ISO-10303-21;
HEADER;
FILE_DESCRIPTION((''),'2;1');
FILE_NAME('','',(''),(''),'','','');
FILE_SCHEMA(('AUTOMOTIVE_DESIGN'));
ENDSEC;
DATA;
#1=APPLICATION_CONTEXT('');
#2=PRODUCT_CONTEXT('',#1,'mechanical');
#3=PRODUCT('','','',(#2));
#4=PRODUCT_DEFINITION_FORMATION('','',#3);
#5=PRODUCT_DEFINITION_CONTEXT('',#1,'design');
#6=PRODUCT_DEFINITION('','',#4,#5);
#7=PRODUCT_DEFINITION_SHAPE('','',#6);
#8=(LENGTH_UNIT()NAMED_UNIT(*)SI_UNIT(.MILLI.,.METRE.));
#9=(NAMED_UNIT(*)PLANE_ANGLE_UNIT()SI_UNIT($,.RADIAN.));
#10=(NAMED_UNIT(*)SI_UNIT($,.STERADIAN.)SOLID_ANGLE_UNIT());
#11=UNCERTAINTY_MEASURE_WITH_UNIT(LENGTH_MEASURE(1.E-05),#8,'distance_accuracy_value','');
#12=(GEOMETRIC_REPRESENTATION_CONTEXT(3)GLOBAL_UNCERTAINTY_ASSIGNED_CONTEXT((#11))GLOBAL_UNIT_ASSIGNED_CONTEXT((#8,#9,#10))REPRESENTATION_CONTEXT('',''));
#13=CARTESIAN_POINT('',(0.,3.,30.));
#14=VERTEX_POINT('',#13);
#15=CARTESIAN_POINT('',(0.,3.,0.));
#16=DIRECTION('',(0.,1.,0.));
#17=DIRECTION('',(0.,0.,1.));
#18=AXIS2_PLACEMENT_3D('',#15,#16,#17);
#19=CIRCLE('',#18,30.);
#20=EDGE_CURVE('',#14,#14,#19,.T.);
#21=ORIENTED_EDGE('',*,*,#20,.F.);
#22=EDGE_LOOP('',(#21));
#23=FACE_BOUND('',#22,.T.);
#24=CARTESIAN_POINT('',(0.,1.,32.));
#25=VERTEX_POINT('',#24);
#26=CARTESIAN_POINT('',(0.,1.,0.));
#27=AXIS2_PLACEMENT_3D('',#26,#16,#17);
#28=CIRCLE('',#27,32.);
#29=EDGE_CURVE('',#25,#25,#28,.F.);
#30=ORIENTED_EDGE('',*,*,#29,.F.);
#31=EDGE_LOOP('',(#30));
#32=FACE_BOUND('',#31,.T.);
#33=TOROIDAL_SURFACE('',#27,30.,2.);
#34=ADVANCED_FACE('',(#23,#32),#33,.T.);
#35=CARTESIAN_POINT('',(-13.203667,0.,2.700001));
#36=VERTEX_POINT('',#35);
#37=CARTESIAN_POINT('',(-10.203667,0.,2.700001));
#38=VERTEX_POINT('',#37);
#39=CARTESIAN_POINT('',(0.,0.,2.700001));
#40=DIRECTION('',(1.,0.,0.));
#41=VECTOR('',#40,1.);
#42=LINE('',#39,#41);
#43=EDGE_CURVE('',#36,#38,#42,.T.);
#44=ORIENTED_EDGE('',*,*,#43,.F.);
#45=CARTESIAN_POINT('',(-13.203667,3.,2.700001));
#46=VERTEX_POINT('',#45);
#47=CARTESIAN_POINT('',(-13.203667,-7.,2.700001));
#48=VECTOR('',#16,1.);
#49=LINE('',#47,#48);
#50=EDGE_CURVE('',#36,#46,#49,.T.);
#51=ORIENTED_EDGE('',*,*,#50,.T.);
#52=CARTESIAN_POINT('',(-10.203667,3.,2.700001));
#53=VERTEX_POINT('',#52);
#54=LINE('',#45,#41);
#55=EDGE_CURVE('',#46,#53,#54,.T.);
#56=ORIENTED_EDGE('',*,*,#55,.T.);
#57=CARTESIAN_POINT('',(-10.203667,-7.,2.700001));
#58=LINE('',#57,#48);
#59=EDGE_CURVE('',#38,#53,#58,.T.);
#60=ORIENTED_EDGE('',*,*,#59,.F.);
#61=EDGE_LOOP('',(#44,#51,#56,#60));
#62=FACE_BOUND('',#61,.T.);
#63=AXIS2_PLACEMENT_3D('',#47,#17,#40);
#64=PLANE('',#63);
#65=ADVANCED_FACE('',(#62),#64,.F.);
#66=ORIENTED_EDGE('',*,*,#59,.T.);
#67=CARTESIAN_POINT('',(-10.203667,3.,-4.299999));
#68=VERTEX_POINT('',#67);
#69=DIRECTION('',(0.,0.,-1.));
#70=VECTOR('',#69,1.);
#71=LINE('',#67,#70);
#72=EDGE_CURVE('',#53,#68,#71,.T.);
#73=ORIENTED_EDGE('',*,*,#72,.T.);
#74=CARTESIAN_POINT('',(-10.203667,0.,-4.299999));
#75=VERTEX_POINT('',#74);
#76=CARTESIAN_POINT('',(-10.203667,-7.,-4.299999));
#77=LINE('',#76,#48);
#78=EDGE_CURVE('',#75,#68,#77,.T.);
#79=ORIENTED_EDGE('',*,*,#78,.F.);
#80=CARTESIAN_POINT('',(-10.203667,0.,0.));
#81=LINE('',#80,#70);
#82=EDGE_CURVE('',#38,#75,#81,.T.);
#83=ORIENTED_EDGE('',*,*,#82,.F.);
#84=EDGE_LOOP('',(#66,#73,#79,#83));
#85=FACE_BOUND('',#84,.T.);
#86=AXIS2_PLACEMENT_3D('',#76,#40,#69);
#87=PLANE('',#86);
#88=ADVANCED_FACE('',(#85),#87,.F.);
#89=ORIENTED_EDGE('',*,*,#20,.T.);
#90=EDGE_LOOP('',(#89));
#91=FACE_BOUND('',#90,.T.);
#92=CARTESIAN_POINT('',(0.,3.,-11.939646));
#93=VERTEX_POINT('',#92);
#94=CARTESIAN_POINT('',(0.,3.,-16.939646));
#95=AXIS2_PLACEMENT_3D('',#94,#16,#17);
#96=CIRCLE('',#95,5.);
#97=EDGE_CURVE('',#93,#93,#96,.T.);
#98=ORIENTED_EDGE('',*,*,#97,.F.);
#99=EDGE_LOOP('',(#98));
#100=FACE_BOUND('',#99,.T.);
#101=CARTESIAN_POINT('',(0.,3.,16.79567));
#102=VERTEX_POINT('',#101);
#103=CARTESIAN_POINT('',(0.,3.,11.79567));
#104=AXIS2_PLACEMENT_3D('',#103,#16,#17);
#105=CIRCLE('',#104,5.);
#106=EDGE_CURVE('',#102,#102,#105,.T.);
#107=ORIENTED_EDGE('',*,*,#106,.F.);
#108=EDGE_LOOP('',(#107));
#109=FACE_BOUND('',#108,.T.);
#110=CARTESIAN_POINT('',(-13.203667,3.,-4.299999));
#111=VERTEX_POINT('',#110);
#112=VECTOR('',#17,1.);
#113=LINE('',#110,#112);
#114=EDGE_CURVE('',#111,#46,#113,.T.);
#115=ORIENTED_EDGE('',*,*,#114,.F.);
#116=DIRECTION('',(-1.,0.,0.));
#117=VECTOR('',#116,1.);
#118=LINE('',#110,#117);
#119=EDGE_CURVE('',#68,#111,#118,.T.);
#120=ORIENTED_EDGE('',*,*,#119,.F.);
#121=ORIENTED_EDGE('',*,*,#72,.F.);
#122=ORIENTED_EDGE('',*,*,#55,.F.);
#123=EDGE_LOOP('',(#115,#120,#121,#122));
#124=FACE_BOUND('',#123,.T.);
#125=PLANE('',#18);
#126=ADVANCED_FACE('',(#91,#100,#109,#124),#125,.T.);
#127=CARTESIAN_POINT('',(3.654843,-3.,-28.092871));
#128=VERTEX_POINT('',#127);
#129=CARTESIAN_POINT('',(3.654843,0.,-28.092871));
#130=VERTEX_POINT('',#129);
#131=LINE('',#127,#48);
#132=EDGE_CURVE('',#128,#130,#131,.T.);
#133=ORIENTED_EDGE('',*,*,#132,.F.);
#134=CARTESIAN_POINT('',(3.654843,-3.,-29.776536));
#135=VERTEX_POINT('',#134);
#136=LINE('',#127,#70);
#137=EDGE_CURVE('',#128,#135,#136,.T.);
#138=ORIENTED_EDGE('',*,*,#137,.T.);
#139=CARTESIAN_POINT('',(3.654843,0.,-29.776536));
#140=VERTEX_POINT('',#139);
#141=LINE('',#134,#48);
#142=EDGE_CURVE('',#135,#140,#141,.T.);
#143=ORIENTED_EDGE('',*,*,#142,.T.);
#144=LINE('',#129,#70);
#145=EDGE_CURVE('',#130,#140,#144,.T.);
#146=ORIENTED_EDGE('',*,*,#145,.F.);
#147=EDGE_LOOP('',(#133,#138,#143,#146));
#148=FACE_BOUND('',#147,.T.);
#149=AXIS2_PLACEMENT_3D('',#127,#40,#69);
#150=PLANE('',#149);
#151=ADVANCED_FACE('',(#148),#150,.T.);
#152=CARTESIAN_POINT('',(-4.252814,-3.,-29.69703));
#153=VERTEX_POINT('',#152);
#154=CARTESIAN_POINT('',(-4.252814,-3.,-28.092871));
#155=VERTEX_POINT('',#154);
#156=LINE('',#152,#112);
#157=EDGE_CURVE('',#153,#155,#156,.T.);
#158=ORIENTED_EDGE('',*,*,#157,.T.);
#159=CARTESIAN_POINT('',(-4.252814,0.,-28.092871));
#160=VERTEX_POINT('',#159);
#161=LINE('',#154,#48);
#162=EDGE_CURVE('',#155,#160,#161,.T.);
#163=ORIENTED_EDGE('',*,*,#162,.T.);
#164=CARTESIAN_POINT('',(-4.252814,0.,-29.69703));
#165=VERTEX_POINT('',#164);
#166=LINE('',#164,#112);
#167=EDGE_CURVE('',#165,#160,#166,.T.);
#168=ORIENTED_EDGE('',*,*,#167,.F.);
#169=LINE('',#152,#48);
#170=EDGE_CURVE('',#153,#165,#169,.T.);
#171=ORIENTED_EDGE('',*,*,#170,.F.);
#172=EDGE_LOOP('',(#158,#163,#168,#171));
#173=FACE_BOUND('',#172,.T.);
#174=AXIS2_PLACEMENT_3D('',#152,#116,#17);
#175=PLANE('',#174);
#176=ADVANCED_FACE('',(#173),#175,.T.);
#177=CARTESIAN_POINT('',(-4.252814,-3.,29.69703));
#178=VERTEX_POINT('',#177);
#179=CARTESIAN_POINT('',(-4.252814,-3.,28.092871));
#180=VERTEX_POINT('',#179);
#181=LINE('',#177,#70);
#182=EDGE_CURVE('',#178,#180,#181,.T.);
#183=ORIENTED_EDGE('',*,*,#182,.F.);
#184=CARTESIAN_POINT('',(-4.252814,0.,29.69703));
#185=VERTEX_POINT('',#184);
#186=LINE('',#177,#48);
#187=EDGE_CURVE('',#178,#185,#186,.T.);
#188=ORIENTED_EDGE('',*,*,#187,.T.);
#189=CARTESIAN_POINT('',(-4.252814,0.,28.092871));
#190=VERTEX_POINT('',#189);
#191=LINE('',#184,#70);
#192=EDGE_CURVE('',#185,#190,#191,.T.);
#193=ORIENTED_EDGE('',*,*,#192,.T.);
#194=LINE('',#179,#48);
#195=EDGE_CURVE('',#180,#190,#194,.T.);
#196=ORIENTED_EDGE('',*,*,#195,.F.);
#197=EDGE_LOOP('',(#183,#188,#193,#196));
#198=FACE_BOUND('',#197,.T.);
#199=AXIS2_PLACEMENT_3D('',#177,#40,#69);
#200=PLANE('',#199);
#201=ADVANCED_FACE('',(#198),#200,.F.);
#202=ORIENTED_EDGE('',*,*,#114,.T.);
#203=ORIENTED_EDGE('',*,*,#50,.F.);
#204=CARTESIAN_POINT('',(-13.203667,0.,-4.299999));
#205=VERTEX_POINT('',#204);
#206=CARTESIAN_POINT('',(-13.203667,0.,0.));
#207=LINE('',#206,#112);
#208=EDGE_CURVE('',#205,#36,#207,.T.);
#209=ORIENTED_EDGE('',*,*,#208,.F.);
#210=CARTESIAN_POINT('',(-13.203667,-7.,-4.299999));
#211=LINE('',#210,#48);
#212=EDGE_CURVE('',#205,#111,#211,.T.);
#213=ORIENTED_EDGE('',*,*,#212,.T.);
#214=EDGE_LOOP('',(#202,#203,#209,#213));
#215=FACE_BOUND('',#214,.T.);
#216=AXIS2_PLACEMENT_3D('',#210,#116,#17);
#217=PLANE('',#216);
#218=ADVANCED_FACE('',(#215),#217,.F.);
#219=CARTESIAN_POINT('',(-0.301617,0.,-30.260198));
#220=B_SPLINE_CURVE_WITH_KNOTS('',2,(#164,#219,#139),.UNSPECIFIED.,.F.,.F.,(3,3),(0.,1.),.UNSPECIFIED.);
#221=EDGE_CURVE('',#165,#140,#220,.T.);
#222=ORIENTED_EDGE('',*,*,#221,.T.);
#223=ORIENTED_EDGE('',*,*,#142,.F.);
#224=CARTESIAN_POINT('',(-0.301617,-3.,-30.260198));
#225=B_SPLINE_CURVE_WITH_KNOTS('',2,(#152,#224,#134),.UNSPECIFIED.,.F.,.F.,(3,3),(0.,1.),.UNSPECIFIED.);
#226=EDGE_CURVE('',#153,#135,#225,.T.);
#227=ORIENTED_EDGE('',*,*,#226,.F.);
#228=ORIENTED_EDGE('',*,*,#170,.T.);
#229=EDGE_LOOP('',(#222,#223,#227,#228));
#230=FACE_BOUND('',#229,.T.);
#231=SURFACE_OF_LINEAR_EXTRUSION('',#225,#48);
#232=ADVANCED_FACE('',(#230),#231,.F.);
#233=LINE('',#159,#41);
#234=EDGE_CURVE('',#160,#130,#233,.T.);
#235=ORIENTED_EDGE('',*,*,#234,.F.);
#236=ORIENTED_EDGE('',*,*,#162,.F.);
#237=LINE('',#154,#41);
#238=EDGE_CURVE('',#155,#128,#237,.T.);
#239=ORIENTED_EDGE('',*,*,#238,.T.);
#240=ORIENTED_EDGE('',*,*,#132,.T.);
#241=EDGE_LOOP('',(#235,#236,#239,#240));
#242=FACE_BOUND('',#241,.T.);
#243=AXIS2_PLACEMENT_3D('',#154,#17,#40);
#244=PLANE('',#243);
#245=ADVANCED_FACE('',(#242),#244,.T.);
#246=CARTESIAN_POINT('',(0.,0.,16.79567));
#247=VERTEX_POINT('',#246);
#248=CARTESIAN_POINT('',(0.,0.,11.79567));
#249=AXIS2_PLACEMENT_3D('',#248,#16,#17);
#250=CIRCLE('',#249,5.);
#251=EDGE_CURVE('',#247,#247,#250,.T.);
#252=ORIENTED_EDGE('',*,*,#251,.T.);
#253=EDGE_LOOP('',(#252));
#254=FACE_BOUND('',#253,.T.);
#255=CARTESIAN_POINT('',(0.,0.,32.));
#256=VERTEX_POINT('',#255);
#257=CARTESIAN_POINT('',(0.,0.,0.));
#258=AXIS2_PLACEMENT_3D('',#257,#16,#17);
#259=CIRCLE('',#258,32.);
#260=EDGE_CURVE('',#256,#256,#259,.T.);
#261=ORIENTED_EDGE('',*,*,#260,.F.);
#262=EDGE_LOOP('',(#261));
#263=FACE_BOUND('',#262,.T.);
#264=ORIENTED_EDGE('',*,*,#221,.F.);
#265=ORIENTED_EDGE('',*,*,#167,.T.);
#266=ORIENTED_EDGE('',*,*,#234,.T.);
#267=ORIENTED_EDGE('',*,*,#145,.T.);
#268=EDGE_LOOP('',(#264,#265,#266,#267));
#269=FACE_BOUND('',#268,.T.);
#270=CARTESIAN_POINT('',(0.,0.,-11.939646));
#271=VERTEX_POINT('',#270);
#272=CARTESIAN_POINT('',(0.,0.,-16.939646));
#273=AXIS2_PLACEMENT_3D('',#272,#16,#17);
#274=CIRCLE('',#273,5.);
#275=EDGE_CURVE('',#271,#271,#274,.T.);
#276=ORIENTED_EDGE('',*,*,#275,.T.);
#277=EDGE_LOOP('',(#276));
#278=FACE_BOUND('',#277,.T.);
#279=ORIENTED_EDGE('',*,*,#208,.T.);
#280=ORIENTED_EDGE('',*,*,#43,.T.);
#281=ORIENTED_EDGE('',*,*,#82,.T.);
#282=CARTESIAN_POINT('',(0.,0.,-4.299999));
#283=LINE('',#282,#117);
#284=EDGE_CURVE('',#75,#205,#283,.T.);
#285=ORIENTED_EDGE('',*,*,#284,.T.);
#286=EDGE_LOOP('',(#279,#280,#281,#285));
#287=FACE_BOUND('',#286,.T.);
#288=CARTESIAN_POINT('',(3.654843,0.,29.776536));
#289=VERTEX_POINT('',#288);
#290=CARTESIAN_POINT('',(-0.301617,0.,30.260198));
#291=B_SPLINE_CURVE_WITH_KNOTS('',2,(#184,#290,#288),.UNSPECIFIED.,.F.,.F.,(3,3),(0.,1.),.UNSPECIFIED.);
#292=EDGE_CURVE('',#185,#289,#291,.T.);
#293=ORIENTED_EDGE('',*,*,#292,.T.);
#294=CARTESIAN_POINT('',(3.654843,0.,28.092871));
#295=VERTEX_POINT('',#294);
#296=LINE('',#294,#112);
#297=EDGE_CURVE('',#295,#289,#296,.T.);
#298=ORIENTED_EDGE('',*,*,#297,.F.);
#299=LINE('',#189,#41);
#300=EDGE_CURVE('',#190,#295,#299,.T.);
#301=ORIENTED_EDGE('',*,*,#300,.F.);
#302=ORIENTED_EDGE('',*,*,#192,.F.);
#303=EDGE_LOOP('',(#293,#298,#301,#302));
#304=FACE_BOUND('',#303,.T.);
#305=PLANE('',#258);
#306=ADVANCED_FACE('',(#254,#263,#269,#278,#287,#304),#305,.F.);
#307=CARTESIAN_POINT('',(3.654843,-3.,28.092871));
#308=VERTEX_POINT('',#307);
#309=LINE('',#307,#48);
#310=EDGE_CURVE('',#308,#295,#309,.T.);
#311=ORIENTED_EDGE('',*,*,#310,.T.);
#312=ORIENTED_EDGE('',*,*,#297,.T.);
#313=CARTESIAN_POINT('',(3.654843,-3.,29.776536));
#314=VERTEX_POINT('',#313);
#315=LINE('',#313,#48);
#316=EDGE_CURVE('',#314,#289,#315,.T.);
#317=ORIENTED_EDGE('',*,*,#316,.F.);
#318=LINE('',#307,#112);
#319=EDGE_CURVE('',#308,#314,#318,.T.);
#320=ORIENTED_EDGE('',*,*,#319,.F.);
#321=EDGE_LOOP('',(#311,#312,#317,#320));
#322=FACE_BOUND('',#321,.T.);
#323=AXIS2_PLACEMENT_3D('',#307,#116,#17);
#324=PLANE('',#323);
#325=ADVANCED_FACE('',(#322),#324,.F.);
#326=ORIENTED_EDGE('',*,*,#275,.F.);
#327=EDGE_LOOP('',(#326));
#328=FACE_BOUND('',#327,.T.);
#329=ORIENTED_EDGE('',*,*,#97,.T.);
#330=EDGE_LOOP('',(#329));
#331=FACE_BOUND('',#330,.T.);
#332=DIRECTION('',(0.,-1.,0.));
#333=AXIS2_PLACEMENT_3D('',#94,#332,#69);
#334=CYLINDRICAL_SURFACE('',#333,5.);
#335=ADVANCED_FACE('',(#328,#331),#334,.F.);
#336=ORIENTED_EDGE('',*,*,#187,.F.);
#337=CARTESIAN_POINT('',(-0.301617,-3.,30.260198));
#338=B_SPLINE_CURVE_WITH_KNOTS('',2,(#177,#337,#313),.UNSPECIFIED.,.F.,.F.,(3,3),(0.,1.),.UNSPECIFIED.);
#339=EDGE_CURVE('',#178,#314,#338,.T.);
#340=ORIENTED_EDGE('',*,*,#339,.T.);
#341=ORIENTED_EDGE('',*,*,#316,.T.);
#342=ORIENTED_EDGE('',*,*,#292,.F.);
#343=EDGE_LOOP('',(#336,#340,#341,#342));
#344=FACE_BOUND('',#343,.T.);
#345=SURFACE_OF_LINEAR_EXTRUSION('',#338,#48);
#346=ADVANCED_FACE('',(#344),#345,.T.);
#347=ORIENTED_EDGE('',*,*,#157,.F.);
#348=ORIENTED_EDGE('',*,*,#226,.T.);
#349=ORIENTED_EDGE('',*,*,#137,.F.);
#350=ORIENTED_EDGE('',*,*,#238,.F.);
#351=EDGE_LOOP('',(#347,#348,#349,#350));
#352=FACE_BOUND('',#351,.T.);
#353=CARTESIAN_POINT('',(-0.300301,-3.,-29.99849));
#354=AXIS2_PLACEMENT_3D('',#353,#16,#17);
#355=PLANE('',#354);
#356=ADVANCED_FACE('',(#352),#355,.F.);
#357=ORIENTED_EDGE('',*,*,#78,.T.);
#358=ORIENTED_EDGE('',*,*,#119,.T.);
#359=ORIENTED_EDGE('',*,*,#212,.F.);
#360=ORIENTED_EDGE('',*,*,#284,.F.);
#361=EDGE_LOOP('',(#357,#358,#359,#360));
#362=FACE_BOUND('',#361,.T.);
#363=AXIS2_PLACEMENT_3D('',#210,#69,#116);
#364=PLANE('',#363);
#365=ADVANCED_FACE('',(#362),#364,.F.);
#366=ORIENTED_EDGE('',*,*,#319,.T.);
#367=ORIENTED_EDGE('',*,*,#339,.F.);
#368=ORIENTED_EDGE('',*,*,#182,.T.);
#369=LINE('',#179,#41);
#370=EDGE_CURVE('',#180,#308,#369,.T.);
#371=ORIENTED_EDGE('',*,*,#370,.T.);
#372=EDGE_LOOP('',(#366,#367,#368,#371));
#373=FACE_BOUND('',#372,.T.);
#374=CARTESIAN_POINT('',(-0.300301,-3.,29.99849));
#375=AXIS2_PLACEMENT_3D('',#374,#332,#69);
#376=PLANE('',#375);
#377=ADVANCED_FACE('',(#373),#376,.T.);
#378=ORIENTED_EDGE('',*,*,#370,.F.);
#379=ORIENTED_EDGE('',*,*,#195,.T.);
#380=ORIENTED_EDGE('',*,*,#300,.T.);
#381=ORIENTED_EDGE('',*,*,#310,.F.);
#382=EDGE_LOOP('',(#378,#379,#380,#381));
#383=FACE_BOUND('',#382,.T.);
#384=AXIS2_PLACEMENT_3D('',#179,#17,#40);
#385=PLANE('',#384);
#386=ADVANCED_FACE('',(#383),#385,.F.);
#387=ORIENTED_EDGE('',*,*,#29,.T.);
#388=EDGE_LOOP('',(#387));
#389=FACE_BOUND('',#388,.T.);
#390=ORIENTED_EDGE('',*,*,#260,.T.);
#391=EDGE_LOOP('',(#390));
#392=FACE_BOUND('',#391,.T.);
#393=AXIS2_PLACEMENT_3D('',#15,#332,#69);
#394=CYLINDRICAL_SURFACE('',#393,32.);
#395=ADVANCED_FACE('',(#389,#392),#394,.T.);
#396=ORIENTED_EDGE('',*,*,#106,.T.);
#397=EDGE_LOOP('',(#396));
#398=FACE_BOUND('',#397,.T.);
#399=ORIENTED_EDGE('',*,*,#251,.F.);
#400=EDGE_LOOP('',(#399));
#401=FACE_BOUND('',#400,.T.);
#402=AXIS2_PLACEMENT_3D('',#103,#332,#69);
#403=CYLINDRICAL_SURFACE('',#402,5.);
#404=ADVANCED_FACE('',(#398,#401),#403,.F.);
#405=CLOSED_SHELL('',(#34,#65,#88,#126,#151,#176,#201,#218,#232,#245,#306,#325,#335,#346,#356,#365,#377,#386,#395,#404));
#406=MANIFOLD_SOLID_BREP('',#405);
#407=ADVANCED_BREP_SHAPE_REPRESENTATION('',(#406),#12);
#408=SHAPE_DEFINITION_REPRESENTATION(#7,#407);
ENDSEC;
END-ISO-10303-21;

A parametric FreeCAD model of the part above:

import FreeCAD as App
import Part
import Sketcher


def edges_at(feature, points):
    """Names of the edges that pass closest to the given points."""
    edges = feature.Shape.Edges
    near = lambda p: min(range(len(edges)), key=lambda i: edges[i].distToShape(Part.Vertex(*p))[0])
    return sorted({f"Edge{near(p) + 1}" for p in points})

doc = App.newDocument("Part")
body = doc.addObject("PartDesign::Body", "Body")

sketch1 = body.newObject("Sketcher::SketchObject", "Sketch")
sketch1.AttachmentSupport = (doc.getObject("XZ_Plane"), [""])
sketch1.MapMode = "FlatFace"
sketch1.addGeometry([
    Part.Circle(App.Vector(0, 0, 0), App.Vector(0, 0, 1), 32),
    Part.Circle(App.Vector(0, -17, 0), App.Vector(0, 0, 1), 5),
    Part.Circle(App.Vector(0, 12, 0), App.Vector(0, 0, 1), 5),
], False)
sketch1.addConstraint([
    Sketcher.Constraint("Coincident", 0, 3, -1, 1),
    Sketcher.Constraint("Equal", 1, 2),
    Sketcher.Constraint("PointOnObject", 1, 3, -2),
    Sketcher.Constraint("PointOnObject", 2, 3, -2),
    Sketcher.Constraint("Diameter", 0, 64.0),
    Sketcher.Constraint("Diameter", 1, 10.0),
    Sketcher.Constraint("DistanceY", -1, 1, 2, 3, 11.79567),
    Sketcher.Constraint("DistanceY", 1, 3, -1, 1, 16.939646),
])
pad1 = body.newObject("PartDesign::Pad", "Pad")
pad1.Profile = sketch1
pad1.Length = 3
pad1.Reversed = True
doc.recompute()

fillet = body.newObject("PartDesign::Fillet", "Fillet")
fillet.Base = (pad1, edges_at(pad1, [(0, 3, -32)]))
fillet.Radius = 2

sketch2 = body.newObject("Sketcher::SketchObject", "Sketch001")
sketch2.AttachmentSupport = (doc.getObject("XZ_Plane"), [""])
sketch2.MapMode = "FlatFace"
sketch2.addGeometry([
    Part.LineSegment(App.Vector(-4.252814, 29.69703, 0), App.Vector(-4.252814, 28.092871, 0)),
    Part.LineSegment(App.Vector(-4.252814, 28.092871, 0), App.Vector(3.654843, 28.092871, 0)),
    Part.LineSegment(App.Vector(3.654843, 28.092871, 0), App.Vector(3.654843, 29.776536, 0)),
    Part.BSplineCurve([App.Vector(-4.252814, 29.69703, 0), App.Vector(-0.301617, 30.260198, 0), App.Vector(3.654843, 29.776536, 0)], [3, 3], [0, 1], False, 2, [1, 1, 1], False),
    Part.LineSegment(App.Vector(3.654843, -28.092871, 0), App.Vector(-4.252814, -28.092871, 0)),
    Part.LineSegment(App.Vector(-4.252814, -28.092871, 0), App.Vector(-4.252814, -29.69703, 0)),
    Part.BSplineCurve([App.Vector(-4.252814, -29.69703, 0), App.Vector(-0.301617, -30.260198, 0), App.Vector(3.654843, -29.776536, 0)], [3, 3], [0, 1], False, 2, [1, 1, 1], False),
    Part.LineSegment(App.Vector(3.654843, -29.776536, 0), App.Vector(3.654843, -28.092871, 0)),
], False)
sketch2.addConstraint([
    Sketcher.Constraint("Block", 3),
    Sketcher.Constraint("Block", 6),
    Sketcher.Constraint("Coincident", 0, 2, 1, 1),
    Sketcher.Constraint("Coincident", 1, 2, 2, 1),
    Sketcher.Constraint("Coincident", 2, 2, 3, 2),
    Sketcher.Constraint("Coincident", 3, 1, 0, 1),
    Sketcher.Constraint("Coincident", 4, 2, 5, 1),
    Sketcher.Constraint("Coincident", 5, 2, 6, 1),
    Sketcher.Constraint("Coincident", 6, 2, 7, 1),
    Sketcher.Constraint("Coincident", 7, 2, 4, 1),
    Sketcher.Constraint("Vertical", 0),
    Sketcher.Constraint("Horizontal", 1),
    Sketcher.Constraint("Vertical", 2),
    Sketcher.Constraint("Horizontal", 4),
    Sketcher.Constraint("Vertical", 5),
    Sketcher.Constraint("Vertical", 7),
    Sketcher.Constraint("Equal", 0, 5),
    Sketcher.Constraint("DistanceY", 0, 2, 0, 1, 1.604159),
])
pad2 = body.newObject("PartDesign::Pad", "Pad001")
pad2.Profile = sketch2
pad2.Length = 3

sketch3 = body.newObject("Sketcher::SketchObject", "Sketch002")
sketch3.AttachmentSupport = (doc.getObject("XZ_Plane"), [""])
sketch3.MapMode = "FlatFace"
sketch3.AttachmentOffset = App.Placement(App.Vector(0, 0, -3), App.Rotation())
sketch3.addGeometry([
    Part.LineSegment(App.Vector(-13.2, -4.3, 0), App.Vector(-13.2, 2.7, 0)),
    Part.LineSegment(App.Vector(-13.2, 2.7, 0), App.Vector(-10.2, 2.7, 0)),
    Part.LineSegment(App.Vector(-10.2, 2.7, 0), App.Vector(-10.2, -4.3, 0)),
    Part.LineSegment(App.Vector(-10.2, -4.3, 0), App.Vector(-13.2, -4.3, 0)),
], False)
sketch3.addConstraint([
    Sketcher.Constraint("Coincident", 0, 2, 1, 1),
    Sketcher.Constraint("Coincident", 1, 2, 2, 1),
    Sketcher.Constraint("Coincident", 2, 2, 3, 1),
    Sketcher.Constraint("Coincident", 3, 2, 0, 1),
    Sketcher.Constraint("Vertical", 0),
    Sketcher.Constraint("Horizontal", 1),
    Sketcher.Constraint("Vertical", 2),
    Sketcher.Constraint("Horizontal", 3),
    Sketcher.Constraint("DistanceX", 1, 1, 1, 2, 3.0),
    Sketcher.Constraint("DistanceY", 0, 1, 0, 2, 7.0),
    Sketcher.Constraint("DistanceY", -1, 1, 0, 2, 2.700001),
    Sketcher.Constraint("DistanceX", 0, 2, -1, 1, 13.203667),
])
pocket1 = body.newObject("PartDesign::Pocket", "Pocket")
pocket1.Profile = sketch3
pocket1.Length = 10
pocket1.Reversed = True

doc.recompute()
